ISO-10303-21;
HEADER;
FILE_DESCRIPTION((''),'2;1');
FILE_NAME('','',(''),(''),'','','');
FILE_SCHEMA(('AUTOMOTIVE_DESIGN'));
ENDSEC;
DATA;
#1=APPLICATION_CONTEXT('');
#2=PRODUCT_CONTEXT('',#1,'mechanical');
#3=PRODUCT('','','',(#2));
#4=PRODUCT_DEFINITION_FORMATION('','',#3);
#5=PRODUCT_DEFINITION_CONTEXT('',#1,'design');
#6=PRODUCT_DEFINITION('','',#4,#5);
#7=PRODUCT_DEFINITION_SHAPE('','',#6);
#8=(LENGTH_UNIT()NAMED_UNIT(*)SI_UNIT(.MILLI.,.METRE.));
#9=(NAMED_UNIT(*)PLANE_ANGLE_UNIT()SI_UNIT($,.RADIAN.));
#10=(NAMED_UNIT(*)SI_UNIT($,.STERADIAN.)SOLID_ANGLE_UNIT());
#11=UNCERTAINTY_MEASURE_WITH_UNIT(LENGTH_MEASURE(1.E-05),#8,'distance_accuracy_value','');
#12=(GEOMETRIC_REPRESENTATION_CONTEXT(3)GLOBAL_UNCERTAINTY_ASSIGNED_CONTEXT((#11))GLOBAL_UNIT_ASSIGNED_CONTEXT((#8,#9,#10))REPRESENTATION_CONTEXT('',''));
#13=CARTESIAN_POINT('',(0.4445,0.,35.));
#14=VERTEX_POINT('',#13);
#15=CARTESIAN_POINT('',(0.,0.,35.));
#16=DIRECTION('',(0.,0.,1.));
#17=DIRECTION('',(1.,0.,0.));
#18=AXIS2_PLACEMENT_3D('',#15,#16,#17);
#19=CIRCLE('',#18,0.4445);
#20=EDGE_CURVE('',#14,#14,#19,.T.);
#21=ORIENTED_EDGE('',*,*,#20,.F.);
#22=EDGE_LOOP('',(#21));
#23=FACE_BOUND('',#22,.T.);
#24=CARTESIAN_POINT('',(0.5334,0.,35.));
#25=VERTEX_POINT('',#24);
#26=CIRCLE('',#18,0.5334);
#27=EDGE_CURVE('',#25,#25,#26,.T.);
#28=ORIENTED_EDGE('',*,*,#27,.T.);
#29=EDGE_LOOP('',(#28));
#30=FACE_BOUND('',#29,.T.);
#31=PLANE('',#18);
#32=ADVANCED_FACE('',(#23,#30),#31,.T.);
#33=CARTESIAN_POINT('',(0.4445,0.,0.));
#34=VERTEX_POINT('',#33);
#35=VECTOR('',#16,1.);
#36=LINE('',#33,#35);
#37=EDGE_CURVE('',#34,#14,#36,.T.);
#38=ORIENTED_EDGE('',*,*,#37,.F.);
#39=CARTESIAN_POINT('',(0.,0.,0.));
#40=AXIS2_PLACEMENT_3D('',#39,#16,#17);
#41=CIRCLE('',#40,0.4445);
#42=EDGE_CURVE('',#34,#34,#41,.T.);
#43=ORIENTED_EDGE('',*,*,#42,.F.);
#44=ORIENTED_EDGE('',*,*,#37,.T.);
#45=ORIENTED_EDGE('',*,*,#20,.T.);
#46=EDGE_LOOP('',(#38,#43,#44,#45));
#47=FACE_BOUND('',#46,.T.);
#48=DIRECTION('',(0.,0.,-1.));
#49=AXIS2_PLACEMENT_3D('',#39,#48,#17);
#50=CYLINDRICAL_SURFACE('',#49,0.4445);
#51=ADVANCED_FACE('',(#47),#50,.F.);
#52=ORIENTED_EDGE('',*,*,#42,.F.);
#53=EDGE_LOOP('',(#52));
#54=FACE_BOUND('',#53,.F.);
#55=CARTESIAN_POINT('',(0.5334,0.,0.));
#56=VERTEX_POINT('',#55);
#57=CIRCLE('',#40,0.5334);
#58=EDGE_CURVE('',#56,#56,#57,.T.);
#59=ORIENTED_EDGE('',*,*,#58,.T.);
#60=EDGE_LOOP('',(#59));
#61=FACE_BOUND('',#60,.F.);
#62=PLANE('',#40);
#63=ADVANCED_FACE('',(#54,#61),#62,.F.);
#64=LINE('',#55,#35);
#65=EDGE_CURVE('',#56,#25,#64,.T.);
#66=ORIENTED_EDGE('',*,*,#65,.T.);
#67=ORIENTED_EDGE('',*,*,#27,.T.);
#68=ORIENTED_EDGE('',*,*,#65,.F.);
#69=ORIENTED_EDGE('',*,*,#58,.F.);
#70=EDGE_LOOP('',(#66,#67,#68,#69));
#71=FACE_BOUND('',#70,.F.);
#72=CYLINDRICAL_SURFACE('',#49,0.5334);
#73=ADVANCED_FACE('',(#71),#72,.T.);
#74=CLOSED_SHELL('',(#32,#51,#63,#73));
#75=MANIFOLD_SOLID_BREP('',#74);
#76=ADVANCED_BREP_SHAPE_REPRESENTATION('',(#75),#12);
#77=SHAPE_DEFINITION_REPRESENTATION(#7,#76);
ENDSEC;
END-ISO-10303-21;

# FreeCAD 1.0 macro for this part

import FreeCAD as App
import Part
import Sketcher
from FreeCAD import Vector
Q = App.Units.Quantity

doc = App.newDocument("Part")
body = doc.addObject("PartDesign::Body", "Body")

sketch1 = body.newObject("Sketcher::SketchObject", "Sketch")
sketch1.AttachmentSupport = (doc.getObject("XY_Plane"), [""])
sketch1.MapMode = "FlatFace"
sketch1.addGeometry(Part.Circle(Vector(0, 0, 0), Vector(0, 0, 1), 0.53), False)
sketch1.addGeometry(Part.Circle(Vector(0, 0, 0), Vector(0, 0, 1), 0.44), False)
sketch1.addConstraint(Sketcher.Constraint("Coincident", 0, 3, -1, 1))
sketch1.addConstraint(Sketcher.Constraint("Coincident", 1, 3, -1, 1))
sketch1.addConstraint(Sketcher.Constraint("Diameter", 0, Q("0.042 in")))
sketch1.addConstraint(Sketcher.Constraint("Diameter", 1, Q("0.035 in")))
pad1 = body.newObject("PartDesign::Pad", "Pad")
pad1.Profile = sketch1
pad1.Length = 35

doc.recompute()
